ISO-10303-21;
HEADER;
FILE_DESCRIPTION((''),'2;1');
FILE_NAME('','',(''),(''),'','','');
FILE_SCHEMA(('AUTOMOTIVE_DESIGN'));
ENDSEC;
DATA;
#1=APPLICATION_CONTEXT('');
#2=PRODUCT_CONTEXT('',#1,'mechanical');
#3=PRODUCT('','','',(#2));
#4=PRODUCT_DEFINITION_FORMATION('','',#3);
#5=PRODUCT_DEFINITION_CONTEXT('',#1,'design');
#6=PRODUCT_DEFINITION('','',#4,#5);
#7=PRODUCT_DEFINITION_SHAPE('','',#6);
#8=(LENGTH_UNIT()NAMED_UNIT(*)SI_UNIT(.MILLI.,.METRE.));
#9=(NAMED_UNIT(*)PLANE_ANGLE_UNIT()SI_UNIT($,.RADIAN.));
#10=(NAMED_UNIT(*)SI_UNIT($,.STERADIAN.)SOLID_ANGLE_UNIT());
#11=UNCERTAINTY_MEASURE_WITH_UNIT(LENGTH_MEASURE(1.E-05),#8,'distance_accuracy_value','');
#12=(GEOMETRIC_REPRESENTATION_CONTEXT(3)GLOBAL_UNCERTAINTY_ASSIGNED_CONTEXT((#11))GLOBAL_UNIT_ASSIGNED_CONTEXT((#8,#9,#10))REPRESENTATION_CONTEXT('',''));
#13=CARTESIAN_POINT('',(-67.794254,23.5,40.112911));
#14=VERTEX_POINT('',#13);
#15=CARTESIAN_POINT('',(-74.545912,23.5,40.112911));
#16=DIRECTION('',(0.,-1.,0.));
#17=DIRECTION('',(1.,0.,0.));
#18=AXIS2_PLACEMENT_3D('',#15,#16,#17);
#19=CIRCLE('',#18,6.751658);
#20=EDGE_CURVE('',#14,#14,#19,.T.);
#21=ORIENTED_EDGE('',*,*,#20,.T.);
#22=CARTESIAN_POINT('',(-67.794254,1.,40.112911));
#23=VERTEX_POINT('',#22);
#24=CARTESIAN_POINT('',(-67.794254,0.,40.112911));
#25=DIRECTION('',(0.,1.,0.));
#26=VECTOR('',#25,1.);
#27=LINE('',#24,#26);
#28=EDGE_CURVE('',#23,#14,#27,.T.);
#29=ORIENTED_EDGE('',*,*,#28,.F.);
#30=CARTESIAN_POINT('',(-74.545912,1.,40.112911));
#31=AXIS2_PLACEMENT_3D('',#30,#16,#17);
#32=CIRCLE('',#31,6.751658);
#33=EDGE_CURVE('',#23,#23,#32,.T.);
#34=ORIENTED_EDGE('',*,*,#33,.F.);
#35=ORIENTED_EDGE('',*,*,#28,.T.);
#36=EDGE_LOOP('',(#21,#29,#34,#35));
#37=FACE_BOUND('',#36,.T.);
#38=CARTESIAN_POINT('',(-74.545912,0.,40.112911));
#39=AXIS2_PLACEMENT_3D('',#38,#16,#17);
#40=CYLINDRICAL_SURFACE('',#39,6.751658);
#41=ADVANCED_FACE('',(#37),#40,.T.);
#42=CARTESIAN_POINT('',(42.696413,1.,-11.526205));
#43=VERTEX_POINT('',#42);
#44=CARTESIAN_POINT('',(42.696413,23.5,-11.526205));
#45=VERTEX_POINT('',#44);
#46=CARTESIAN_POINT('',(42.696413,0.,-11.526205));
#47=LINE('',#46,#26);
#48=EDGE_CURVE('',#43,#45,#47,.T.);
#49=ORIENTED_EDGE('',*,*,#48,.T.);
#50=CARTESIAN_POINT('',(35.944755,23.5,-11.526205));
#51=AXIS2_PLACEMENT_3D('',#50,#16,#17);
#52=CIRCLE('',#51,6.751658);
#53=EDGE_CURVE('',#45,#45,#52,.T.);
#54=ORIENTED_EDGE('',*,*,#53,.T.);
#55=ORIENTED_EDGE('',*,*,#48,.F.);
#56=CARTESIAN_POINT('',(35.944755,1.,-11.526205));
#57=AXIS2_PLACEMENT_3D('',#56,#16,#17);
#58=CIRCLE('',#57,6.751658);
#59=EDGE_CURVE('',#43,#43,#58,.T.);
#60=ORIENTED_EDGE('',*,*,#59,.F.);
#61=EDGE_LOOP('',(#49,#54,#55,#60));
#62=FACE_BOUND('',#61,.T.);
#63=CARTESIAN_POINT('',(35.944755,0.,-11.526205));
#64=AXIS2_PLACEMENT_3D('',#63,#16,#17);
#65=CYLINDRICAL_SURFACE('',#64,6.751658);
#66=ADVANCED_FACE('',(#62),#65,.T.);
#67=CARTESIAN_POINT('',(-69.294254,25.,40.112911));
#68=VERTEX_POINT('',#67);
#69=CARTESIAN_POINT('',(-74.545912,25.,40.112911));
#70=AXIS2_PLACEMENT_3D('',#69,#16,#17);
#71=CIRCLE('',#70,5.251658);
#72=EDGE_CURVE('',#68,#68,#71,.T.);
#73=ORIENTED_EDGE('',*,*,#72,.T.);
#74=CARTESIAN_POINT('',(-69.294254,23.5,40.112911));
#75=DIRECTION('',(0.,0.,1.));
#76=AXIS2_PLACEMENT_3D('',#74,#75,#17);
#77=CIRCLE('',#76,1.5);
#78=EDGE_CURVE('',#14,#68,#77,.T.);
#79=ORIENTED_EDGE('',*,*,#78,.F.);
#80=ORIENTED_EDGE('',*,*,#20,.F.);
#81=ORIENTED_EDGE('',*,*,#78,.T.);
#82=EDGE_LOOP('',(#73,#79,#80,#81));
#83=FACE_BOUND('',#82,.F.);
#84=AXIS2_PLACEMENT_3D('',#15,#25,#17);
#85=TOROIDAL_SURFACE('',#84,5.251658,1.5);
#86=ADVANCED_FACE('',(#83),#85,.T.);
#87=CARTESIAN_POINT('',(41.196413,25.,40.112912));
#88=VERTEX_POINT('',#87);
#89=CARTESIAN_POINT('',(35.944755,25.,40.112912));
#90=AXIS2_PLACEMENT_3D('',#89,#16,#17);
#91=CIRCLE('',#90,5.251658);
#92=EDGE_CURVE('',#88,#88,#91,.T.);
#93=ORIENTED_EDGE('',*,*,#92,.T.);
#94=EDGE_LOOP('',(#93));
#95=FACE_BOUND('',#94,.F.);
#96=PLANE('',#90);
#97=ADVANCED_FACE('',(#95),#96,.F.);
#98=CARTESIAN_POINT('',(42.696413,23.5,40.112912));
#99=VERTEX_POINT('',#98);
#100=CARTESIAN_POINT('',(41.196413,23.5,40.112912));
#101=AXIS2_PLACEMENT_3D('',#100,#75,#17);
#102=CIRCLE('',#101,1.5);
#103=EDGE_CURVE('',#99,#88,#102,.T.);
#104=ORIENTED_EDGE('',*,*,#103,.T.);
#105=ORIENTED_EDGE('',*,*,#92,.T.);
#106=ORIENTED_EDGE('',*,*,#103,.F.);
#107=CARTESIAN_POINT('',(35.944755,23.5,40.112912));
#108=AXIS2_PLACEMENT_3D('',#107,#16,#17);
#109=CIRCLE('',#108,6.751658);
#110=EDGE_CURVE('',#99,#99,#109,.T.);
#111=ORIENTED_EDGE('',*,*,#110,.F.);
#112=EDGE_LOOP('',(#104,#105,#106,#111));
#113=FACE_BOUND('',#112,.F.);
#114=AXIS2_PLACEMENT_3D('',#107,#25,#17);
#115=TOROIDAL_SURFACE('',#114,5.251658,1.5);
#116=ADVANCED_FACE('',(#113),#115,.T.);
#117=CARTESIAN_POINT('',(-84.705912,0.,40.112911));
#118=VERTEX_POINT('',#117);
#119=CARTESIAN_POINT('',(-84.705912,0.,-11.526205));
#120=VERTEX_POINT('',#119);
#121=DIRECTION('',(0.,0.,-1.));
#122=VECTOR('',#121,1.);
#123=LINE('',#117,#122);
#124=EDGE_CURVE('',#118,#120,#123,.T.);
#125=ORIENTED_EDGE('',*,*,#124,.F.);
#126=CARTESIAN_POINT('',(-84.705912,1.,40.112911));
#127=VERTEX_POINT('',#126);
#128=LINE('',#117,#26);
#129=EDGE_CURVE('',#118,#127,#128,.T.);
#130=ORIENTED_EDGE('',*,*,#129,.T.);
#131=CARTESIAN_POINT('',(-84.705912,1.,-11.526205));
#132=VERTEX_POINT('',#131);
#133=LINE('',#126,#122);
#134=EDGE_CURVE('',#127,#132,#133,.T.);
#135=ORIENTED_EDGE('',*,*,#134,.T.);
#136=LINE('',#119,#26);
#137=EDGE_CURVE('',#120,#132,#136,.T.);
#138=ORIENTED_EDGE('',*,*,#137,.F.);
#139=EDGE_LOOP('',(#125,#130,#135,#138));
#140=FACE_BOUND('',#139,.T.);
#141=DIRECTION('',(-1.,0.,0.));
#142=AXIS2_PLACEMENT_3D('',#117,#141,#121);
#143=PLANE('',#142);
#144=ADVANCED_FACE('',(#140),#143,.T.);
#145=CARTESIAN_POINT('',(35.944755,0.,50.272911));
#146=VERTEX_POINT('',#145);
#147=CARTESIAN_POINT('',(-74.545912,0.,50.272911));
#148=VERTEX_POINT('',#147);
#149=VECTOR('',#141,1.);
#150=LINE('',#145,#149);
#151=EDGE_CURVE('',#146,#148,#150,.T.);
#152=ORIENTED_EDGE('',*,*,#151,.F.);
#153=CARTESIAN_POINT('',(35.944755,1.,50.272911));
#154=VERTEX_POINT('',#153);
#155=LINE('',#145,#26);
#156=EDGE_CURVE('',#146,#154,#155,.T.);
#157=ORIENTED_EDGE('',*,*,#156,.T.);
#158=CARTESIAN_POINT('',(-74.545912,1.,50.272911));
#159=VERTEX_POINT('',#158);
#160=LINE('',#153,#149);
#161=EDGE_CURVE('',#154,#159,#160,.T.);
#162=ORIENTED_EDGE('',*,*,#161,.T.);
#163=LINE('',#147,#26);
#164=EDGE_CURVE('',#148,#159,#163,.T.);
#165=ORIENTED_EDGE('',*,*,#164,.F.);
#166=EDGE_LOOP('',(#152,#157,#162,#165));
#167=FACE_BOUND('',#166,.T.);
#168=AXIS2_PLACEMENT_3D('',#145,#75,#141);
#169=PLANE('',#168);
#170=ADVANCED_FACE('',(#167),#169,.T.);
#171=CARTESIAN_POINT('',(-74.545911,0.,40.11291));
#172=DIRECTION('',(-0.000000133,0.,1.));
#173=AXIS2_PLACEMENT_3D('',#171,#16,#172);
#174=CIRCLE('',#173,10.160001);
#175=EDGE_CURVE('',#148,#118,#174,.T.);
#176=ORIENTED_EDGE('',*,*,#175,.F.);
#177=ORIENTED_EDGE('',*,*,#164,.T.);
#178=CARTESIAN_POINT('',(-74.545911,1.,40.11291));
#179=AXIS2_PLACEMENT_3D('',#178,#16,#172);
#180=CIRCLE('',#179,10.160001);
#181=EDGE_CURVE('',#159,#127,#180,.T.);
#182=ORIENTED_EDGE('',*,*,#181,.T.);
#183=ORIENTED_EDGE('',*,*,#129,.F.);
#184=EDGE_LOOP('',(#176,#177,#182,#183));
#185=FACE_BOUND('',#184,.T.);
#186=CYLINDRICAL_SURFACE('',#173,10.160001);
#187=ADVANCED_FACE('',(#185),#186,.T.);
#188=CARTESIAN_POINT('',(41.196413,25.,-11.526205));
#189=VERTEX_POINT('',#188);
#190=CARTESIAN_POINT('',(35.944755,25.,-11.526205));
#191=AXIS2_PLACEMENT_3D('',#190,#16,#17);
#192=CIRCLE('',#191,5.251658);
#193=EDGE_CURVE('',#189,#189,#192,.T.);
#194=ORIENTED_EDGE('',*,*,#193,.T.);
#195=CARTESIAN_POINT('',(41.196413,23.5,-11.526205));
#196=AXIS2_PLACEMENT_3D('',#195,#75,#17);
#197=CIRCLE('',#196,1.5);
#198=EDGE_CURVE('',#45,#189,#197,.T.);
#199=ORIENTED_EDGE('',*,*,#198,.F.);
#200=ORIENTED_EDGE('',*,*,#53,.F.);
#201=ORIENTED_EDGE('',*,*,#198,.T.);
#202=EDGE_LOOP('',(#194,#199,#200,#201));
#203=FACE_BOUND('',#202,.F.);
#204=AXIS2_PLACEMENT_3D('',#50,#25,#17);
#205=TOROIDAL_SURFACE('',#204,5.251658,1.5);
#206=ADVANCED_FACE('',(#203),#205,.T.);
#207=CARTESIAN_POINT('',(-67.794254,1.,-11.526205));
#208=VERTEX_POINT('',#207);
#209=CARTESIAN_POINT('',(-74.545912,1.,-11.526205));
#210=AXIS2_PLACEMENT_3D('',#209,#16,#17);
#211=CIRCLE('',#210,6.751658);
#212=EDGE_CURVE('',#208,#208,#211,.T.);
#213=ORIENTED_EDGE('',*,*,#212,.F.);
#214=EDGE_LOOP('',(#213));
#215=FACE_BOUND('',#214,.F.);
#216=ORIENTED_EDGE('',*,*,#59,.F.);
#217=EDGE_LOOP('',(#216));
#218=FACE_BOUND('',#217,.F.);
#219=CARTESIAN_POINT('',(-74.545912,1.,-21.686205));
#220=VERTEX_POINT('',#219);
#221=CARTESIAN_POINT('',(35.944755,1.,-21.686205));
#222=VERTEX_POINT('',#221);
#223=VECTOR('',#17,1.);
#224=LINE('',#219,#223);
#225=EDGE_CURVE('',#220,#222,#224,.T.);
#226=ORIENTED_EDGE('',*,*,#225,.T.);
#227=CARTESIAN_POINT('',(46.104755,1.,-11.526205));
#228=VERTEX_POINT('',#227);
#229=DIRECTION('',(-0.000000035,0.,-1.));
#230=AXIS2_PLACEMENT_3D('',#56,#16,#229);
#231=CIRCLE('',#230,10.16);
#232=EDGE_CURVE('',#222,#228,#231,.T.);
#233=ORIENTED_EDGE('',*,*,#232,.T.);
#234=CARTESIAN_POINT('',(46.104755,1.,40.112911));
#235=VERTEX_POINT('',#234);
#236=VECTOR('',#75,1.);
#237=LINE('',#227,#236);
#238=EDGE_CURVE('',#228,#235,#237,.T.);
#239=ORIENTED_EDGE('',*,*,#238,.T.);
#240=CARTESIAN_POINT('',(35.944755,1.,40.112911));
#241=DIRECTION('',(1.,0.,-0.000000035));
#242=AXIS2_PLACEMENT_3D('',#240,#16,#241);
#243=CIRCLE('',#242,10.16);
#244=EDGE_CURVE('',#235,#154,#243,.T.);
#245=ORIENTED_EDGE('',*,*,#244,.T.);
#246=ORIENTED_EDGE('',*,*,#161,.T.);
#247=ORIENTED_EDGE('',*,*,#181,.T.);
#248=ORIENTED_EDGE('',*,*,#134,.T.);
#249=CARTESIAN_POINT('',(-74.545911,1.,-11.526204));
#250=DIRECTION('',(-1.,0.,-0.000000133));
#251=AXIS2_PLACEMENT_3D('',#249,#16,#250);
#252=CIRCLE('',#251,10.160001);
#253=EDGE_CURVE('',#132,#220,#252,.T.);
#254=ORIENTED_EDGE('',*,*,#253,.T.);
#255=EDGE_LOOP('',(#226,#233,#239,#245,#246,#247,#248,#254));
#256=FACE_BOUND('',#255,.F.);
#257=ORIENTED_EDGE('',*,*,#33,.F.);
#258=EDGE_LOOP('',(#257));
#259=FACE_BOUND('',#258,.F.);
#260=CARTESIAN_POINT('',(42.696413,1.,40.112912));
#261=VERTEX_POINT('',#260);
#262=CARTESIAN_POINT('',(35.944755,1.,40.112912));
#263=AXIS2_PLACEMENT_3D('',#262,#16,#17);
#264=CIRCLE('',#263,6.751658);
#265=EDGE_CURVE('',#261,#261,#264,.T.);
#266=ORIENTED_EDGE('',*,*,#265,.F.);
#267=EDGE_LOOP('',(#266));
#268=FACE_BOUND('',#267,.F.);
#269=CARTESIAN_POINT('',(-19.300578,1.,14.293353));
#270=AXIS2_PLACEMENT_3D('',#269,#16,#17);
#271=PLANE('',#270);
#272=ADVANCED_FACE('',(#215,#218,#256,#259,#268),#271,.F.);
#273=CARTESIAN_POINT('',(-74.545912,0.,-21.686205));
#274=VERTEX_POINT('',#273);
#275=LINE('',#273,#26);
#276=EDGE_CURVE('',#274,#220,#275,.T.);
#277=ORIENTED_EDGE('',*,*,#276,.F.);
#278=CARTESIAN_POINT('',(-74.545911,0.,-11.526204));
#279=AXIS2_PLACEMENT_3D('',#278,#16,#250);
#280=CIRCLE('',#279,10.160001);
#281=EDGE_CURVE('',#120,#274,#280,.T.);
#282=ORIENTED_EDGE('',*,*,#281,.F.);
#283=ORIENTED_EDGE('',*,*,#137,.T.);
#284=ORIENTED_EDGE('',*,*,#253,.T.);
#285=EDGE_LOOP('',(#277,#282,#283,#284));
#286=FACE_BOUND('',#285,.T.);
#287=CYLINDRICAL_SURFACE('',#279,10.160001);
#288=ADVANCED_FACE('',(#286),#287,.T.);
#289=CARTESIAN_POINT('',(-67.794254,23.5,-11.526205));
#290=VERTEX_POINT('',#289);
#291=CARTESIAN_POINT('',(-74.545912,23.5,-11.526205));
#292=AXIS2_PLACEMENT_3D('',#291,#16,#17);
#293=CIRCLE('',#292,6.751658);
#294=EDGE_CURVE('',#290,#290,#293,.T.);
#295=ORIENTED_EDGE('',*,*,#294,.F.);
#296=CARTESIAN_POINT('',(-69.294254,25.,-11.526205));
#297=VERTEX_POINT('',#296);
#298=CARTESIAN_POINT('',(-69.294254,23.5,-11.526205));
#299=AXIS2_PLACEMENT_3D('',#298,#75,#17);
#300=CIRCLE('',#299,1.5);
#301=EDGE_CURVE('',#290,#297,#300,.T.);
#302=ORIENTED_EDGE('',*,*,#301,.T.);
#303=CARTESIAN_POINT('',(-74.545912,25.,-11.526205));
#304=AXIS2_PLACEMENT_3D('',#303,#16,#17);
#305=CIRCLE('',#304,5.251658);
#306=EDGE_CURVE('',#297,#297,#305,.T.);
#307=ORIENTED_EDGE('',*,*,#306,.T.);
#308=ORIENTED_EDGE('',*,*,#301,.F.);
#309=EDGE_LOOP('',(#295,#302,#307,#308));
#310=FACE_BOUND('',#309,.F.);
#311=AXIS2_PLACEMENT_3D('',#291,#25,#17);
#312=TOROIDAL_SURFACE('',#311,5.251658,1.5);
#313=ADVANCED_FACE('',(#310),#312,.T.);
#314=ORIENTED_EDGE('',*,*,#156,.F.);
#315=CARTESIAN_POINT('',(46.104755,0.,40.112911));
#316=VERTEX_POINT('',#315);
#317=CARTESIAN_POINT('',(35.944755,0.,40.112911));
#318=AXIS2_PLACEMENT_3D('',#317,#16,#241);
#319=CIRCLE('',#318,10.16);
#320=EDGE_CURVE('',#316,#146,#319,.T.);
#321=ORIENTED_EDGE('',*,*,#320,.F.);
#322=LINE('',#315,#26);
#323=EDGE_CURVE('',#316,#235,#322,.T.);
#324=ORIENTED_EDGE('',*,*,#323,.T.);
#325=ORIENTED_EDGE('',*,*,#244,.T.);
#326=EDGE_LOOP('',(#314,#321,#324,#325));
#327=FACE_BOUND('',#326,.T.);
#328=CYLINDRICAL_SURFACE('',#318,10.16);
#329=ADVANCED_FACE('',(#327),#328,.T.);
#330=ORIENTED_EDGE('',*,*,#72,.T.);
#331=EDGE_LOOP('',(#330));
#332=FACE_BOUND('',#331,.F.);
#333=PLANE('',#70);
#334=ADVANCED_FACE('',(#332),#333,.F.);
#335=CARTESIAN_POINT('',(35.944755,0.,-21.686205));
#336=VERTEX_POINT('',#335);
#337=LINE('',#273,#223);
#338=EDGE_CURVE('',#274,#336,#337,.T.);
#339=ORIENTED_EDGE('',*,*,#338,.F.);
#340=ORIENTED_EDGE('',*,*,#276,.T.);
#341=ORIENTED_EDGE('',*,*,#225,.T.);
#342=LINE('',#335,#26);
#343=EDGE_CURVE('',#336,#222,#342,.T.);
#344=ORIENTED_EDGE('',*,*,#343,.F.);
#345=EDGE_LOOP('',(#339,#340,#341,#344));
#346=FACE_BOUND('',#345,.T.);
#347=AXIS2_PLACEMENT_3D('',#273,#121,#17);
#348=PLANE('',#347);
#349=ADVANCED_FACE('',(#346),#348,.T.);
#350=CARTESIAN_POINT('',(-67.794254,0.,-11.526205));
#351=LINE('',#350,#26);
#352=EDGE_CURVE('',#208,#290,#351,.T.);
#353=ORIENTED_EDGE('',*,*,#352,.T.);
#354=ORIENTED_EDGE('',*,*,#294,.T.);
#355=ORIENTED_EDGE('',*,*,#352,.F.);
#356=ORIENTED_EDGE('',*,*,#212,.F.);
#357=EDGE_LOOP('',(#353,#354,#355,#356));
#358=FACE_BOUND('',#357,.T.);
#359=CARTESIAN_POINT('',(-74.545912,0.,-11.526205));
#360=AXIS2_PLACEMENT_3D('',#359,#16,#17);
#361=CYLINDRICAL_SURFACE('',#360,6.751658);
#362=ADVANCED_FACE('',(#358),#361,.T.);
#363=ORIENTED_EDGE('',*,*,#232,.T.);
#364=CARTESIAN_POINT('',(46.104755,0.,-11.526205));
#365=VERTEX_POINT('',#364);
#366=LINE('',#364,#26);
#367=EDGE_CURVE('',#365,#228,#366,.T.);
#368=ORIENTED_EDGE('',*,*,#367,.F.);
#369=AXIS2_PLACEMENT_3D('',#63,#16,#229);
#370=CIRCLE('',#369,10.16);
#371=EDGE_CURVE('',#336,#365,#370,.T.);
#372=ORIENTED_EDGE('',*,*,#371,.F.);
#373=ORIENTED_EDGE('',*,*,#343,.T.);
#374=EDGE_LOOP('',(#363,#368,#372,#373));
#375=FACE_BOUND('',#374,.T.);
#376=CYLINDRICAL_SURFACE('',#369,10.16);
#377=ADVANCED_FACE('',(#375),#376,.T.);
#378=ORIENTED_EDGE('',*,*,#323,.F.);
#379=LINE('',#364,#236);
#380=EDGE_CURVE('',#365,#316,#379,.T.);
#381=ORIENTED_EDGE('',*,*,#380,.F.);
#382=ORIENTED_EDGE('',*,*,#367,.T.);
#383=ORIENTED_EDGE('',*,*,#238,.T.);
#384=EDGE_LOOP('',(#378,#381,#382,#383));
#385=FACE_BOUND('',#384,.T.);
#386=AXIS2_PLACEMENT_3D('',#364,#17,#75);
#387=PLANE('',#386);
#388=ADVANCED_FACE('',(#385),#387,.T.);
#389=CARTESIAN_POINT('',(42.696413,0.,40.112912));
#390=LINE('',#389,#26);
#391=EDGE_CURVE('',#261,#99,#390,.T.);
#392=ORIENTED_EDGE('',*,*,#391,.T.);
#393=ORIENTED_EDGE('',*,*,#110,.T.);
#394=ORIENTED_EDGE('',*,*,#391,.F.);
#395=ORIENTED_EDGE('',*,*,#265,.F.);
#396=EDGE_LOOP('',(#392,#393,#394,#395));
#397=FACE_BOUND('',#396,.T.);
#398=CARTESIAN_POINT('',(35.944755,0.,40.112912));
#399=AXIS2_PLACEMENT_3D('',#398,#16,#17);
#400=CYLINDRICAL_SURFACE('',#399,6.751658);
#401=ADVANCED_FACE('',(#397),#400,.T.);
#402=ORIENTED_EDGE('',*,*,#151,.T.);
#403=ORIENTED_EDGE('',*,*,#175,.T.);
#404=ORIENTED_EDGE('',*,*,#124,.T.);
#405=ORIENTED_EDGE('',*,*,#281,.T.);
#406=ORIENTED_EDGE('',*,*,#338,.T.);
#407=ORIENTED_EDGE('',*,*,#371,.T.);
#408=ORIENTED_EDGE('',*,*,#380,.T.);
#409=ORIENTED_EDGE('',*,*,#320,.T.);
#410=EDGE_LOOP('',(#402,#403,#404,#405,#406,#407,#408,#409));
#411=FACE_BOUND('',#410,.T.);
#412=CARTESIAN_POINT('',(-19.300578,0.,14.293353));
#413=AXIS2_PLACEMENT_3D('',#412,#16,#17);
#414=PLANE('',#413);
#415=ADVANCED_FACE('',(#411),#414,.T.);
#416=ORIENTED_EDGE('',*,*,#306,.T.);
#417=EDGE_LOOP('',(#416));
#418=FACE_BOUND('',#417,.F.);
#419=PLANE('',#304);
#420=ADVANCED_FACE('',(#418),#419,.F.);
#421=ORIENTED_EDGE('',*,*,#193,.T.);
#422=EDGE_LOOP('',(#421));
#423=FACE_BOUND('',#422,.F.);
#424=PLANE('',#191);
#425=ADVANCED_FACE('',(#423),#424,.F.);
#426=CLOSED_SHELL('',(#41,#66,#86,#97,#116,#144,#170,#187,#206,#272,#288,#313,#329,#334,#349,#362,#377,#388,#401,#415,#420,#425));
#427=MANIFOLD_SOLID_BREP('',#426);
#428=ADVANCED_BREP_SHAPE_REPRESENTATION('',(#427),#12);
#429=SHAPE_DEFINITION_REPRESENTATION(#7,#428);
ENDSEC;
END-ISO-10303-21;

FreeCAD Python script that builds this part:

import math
import FreeCAD as App
import Part
import Sketcher
from FreeCAD import Vector


def edges_at(feature, points):
    """Names of the edges that pass closest to the given points."""
    edges = feature.Shape.Edges
    near = lambda p: min(range(len(edges)), key=lambda i: edges[i].distToShape(Part.Vertex(*p))[0])
    return sorted({f"Edge{near(p) + 1}" for p in points})

doc = App.newDocument("Part")
body = doc.addObject("PartDesign::Body", "Body")

# Sketch on XZ plane
sketch1 = body.newObject("Sketcher::SketchObject", "Sketch")
sketch1.AttachmentSupport = (doc.getObject("XZ_Plane"), [""])
sketch1.MapMode = "FlatFace"
sketch1.addGeometry(Part.LineSegment(Vector(-75, -22, 0), Vector(36, -22, 0)), False)
sketch1.addGeometry(Part.ArcOfCircle(Part.Circle(Vector(36, -12, 0), Vector(0, 0, 1), 10), math.radians(-90), math.radians(0)), False)
sketch1.addGeometry(Part.LineSegment(Vector(46, -12, 0), Vector(46, 40, 0)), False)
sketch1.addGeometry(Part.ArcOfCircle(Part.Circle(Vector(36, 40, 0), Vector(0, 0, 1), 10), math.radians(0), math.radians(90)), False)
sketch1.addGeometry(Part.LineSegment(Vector(36, 50, 0), Vector(-75, 50, 0)), False)
sketch1.addGeometry(Part.ArcOfCircle(Part.Circle(Vector(-75, 40, 0), Vector(0, 0, 1), 10), math.radians(90), math.radians(180)), False)
sketch1.addGeometry(Part.LineSegment(Vector(-85, 40, 0), Vector(-85, -12, 0)), False)
sketch1.addGeometry(Part.ArcOfCircle(Part.Circle(Vector(-75, -12, 0), Vector(0, 0, 1), 10), math.radians(-180), math.radians(-90)), False)
sketch1.addGeometry(Part.Circle(Vector(-75, -12, 0), Vector(0, 0, 1), 7), False)
sketch1.addGeometry(Part.Circle(Vector(36, -12, 0), Vector(0, 0, 1), 7), False)
sketch1.addGeometry(Part.Circle(Vector(-75, 40, 0), Vector(0, 0, 1), 7), False)
sketch1.addGeometry(Part.Circle(Vector(36, 40, 0), Vector(0, 0, 1), 7), False)
sketch1.addConstraint(Sketcher.Constraint("Tangent", 0, 2, 1, 1))
sketch1.addConstraint(Sketcher.Constraint("Tangent", 1, 2, 2, 1))
sketch1.addConstraint(Sketcher.Constraint("Tangent", 2, 2, 3, 1))
sketch1.addConstraint(Sketcher.Constraint("Tangent", 3, 2, 4, 1))
sketch1.addConstraint(Sketcher.Constraint("Tangent", 4, 2, 5, 1))
sketch1.addConstraint(Sketcher.Constraint("Tangent", 5, 2, 6, 1))
sketch1.addConstraint(Sketcher.Constraint("Tangent", 6, 2, 7, 1))
sketch1.addConstraint(Sketcher.Constraint("Tangent", 7, 2, 0, 1))
sketch1.addConstraint(Sketcher.Constraint("Horizontal", 0))
sketch1.addConstraint(Sketcher.Constraint("Vertical", 2))
sketch1.addConstraint(Sketcher.Constraint("Horizontal", 4))
sketch1.addConstraint(Sketcher.Constraint("Vertical", 6))
sketch1.addConstraint(Sketcher.Constraint("Coincident", 8, 3, 7, 3))
sketch1.addConstraint(Sketcher.Constraint("Coincident", 9, 3, 1, 3))
sketch1.addConstraint(Sketcher.Constraint("Coincident", 10, 3, 5, 3))
sketch1.addConstraint(Sketcher.Constraint("Coincident", 11, 3, 3, 3))
sketch1.addConstraint(Sketcher.Constraint("Equal", 1, 3))
sketch1.addConstraint(Sketcher.Constraint("Equal", 3, 5))
sketch1.addConstraint(Sketcher.Constraint("Equal", 5, 7))
sketch1.addConstraint(Sketcher.Constraint("Equal", 8, 9))
sketch1.addConstraint(Sketcher.Constraint("Equal", 9, 10))
sketch1.addConstraint(Sketcher.Constraint("Equal", 10, 11))
sketch1.addConstraint(Sketcher.Constraint("Radius", 1, 10.16))
sketch1.addConstraint(Sketcher.Constraint("Diameter", 8, 13.503316))
sketch1.addConstraint(Sketcher.Constraint("DistanceX", 0, 1, 0, 2, 110.490667))
sketch1.addConstraint(Sketcher.Constraint("DistanceY", 2, 1, 2, 2, 51.639116))
sketch1.addConstraint(Sketcher.Constraint("DistanceY", -1, 1, 3, 3, 40.112911))
sketch1.addConstraint(Sketcher.Constraint("DistanceX", 5, 3, -1, 1, 74.545911))
pad1 = body.newObject("PartDesign::Pad", "Pad")
pad1.Profile = sketch1
pad1.Length = 1
pad1.Reversed = True

# Sketch on XZ plane
sketch2 = body.newObject("Sketcher::SketchObject", "Sketch001")
sketch2.AttachmentSupport = (doc.getObject("XZ_Plane"), [""])
sketch2.MapMode = "FlatFace"
sketch2.addGeometry(Part.Circle(Vector(36, 40, 0), Vector(0, 0, 1), 7), False)
sketch2.addGeometry(Part.Circle(Vector(36, -12, 0), Vector(0, 0, 1), 7), False)
sketch2.addGeometry(Part.Circle(Vector(-75, -12, 0), Vector(0, 0, 1), 7), False)
sketch2.addGeometry(Part.Circle(Vector(-75, 40, 0), Vector(0, 0, 1), 7), False)
sketch2.addConstraint(Sketcher.Constraint("Equal", 0, 1))
sketch2.addConstraint(Sketcher.Constraint("Equal", 1, 2))
sketch2.addConstraint(Sketcher.Constraint("Equal", 2, 3))
sketch2.addConstraint(Sketcher.Constraint("Horizontal", 1, 3, 2, 3))
sketch2.addConstraint(Sketcher.Constraint("Horizontal", 0, 3, 3, 3))
sketch2.addConstraint(Sketcher.Constraint("Vertical", 0, 3, 1, 3))
sketch2.addConstraint(Sketcher.Constraint("Vertical", 2, 3, 3, 3))
sketch2.addConstraint(Sketcher.Constraint("Diameter", 0, 13.503316))
sketch2.addConstraint(Sketcher.Constraint("DistanceX", 2, 3, -1, 1, 74.545912))
sketch2.addConstraint(Sketcher.Constraint("DistanceY", -1, 1, 3, 3, 40.112911))
sketch2.addConstraint(Sketcher.Constraint("DistanceX", -1, 1, 0, 3, 35.944755))
sketch2.addConstraint(Sketcher.Constraint("DistanceY", 1, 3, -1, 1, 11.526205))
pad2 = body.newObject("PartDesign::Pad", "Pad001")
pad2.Profile = sketch2
pad2.Length = 25
pad2.Reversed = True
doc.recompute()

fillet = body.newObject("PartDesign::Fillet", "Fillet")
fillet.Base = (pad2, edges_at(pad2, [
    (-81.298, 25, 40.113),
    (29.193, 25, 40.113),
    (29.193, 25, -11.526),
    (-81.298, 25, -11.526),
]))
fillet.Radius = 1.5

doc.recompute()
